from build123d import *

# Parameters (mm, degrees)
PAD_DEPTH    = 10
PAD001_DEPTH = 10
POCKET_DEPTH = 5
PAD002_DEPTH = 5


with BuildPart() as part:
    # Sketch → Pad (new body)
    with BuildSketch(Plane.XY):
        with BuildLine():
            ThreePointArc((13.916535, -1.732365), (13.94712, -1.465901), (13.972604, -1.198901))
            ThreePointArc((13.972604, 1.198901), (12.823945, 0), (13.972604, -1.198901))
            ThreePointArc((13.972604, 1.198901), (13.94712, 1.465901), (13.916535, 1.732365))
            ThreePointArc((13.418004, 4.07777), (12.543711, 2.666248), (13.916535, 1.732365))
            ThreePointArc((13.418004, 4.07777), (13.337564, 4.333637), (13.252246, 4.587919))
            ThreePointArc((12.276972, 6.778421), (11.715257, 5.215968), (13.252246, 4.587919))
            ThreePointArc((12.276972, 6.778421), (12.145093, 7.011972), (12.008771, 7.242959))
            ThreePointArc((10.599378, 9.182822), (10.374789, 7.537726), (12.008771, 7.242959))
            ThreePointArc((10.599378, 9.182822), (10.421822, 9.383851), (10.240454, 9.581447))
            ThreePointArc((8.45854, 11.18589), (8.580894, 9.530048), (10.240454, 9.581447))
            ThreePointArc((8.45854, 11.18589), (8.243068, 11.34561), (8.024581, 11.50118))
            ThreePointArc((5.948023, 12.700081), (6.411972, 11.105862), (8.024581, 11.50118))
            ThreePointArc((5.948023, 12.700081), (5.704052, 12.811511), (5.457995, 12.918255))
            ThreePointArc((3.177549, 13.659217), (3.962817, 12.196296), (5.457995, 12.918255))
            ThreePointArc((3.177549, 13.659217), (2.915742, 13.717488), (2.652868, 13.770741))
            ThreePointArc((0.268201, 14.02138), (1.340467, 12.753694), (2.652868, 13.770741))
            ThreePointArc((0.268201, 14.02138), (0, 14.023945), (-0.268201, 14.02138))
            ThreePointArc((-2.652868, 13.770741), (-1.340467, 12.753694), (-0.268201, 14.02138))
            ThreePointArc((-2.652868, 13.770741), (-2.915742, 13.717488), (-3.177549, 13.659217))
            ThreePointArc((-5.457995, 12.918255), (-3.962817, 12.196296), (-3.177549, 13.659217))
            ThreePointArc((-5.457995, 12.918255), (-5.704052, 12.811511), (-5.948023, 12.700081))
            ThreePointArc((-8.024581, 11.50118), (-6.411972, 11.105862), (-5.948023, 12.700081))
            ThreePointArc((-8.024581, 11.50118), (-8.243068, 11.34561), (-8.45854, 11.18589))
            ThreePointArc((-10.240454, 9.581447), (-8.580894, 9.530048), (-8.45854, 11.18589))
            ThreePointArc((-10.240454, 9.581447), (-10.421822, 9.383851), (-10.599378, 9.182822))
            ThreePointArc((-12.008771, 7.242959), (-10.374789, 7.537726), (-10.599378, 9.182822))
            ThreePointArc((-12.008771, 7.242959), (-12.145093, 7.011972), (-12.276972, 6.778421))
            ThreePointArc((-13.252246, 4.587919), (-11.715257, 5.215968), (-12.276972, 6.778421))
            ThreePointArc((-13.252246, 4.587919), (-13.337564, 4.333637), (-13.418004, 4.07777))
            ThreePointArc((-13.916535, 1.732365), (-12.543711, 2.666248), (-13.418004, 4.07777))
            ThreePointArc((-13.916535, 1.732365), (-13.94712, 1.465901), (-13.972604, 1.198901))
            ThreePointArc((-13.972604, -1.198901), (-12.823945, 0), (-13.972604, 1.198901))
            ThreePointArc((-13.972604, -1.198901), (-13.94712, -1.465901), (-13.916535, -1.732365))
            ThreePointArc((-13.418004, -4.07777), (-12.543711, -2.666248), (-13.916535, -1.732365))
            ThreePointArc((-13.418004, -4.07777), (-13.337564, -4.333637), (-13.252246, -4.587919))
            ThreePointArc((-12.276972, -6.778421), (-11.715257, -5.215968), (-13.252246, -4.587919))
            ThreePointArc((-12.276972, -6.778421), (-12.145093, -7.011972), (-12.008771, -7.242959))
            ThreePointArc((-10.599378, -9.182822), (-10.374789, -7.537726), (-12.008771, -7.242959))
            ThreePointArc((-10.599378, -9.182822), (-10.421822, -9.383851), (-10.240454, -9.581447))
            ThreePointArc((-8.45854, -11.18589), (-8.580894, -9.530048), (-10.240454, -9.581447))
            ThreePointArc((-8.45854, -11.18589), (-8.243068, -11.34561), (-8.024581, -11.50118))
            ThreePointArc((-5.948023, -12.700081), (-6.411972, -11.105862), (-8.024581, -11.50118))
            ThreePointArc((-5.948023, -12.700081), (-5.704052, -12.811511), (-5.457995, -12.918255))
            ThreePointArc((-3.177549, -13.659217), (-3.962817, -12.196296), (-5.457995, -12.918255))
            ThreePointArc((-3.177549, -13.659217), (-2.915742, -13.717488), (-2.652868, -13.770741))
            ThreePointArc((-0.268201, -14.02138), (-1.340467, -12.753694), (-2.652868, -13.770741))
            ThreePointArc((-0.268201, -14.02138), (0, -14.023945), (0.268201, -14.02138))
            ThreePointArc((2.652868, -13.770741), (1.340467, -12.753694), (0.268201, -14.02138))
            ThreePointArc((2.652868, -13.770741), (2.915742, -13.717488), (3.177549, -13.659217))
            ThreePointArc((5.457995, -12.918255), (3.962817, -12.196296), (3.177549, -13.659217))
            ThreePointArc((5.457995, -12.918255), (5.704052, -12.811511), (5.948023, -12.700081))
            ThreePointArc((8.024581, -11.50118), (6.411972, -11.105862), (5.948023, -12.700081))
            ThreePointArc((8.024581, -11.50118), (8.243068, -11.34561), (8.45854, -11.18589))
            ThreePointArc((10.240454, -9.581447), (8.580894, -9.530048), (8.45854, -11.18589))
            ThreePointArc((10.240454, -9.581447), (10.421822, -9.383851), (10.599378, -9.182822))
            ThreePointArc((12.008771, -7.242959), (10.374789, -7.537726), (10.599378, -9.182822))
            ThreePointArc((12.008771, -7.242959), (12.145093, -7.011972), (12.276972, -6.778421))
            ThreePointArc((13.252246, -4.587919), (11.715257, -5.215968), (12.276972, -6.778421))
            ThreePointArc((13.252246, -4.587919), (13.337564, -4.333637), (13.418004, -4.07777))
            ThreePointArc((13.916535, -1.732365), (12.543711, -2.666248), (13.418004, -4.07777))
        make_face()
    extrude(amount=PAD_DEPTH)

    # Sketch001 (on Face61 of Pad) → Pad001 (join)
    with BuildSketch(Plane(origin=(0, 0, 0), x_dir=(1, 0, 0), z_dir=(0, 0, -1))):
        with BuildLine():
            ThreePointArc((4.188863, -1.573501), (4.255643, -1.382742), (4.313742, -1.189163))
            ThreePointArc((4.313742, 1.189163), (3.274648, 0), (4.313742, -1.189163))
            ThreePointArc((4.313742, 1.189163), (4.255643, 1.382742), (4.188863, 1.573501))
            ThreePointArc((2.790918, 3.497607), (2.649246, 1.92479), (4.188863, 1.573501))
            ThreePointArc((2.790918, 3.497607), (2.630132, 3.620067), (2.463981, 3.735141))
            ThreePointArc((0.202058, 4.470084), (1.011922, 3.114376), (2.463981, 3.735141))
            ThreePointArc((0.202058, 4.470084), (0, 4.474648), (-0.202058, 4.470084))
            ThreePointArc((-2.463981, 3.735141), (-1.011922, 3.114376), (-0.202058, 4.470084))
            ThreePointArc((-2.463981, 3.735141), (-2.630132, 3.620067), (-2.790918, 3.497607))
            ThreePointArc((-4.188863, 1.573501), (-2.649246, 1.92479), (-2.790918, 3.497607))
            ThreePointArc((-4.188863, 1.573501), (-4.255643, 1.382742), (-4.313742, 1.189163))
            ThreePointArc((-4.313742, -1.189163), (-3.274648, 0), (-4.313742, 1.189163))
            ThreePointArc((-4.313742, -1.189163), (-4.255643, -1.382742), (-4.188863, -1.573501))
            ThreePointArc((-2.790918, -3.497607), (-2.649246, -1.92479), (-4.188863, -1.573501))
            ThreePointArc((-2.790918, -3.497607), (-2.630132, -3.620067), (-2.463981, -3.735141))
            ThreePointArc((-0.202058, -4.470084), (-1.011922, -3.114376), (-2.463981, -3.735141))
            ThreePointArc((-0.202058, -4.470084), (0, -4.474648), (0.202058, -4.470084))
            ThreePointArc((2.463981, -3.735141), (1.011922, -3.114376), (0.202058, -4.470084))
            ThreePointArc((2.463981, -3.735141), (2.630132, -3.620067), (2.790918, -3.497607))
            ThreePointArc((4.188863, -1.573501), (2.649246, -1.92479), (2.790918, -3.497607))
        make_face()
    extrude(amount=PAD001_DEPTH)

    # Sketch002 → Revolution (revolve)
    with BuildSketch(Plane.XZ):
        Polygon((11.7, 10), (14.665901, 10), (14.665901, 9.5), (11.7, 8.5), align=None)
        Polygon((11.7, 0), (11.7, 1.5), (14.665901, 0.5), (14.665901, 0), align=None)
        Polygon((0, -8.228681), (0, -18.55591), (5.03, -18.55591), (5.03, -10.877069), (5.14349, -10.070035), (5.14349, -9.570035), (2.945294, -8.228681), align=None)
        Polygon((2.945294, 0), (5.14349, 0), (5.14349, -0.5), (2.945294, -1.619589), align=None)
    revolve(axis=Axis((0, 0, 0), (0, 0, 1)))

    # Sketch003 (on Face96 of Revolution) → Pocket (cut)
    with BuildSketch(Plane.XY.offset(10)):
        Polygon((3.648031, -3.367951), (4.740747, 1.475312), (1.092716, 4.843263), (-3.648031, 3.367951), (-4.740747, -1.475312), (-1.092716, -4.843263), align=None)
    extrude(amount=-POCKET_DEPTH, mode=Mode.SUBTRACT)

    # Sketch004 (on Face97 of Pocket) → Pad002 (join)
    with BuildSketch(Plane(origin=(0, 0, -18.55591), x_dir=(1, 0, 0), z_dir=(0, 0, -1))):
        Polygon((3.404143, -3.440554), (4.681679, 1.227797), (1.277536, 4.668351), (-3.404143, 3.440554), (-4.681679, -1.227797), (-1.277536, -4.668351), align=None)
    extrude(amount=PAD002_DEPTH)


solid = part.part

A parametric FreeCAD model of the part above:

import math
import FreeCAD as App
import Part
import Sketcher
from FreeCAD import Vector
Q = App.Units.Quantity


def add_polygon(sketch, points):
    """Adds a closed chain of lines whose ends are joined by coincident constraints."""
    first, n = sketch.GeometryCount, len(points)
    for a, b in zip(points, points[1:] + points[:1]):
        sketch.addGeometry(Part.LineSegment(App.Vector(*a, 0), App.Vector(*b, 0)), False)
    for i in range(n):
        sketch.addConstraint(Sketcher.Constraint("Coincident", first + i, 2, first + (i + 1) % n, 1))

doc = App.newDocument("Part")
body = doc.addObject("PartDesign::Body", "Body")

# Sketch on XY plane
sketch1 = body.newObject("Sketcher::SketchObject", "Sketch")
sketch1.AttachmentSupport = (doc.getObject("XY_Plane"), [""])
sketch1.MapMode = "FlatFace"
sketch1.addGeometry([
    Part.ArcOfCircle(Part.Circle(Vector(-0.001647, 0.000165, 0), Vector(0, 0, 1), 14.025599), math.radians(-7.095657), math.radians(-4.904274)),  # 0
    Part.ArcOfCircle(Part.Circle(Vector(14.023945, 0, 0), Vector(0, 0, 1), 1.2), math.radians(92.452091), math.radians(267.547909)),  # 1
    Part.ArcOfCircle(Part.Circle(Vector(-0.001647, -0.000165, 0), Vector(0, 0, 1), 14.025599), math.radians(4.904274), math.radians(7.095657)),  # 2
    Part.ArcOfCircle(Part.Circle(Vector(13.717488, 2.915742, 0), Vector(0, 0, 1), 1.2), math.radians(104.452081), math.radians(279.547908)),  # 3
    Part.ArcOfCircle(Part.Circle(Vector(-0.001675, -0.000559, 0), Vector(0, 0, 1), 14.02571), math.radians(16.904372), math.radians(19.095739)),  # 4
    Part.ArcOfCircle(Part.Circle(Vector(12.811512, 5.704052, 0), Vector(0, 0, 1), 1.2), math.radians(116.452107), math.radians(291.547879)),  # 5
    Part.ArcOfCircle(Part.Circle(Vector(0.000156, 0.000094, 0), Vector(0, 0, 1), 14.023763), math.radians(28.904152), math.radians(31.095822)),  # 6
    Part.ArcOfCircle(Part.Circle(Vector(11.34561, 8.243068, 0), Vector(0, 0, 1), 1.2), math.radians(128.45208), math.radians(303.547921)),  # 7
    Part.ArcOfCircle(Part.Circle(Vector(0.000597, 0.000526, 0), Vector(0, 0, 1), 14.023149), math.radians(40.90415), math.radians(43.09592)),  # 8
    Part.ArcOfCircle(Part.Circle(Vector(9.38385, 10.421822, 0), Vector(0, 0, 1), 1.2), math.radians(140.452063), math.radians(315.547922)),  # 9
    Part.ArcOfCircle(Part.Circle(Vector(-0.000177, -0.000232, 0), Vector(0, 0, 1), 14.024237), math.radians(52.904172), math.radians(55.095771)),  # 10
    Part.ArcOfCircle(Part.Circle(Vector(7.011972, 12.145092, 0), Vector(0, 0, 1), 1.2), math.radians(152.452069), math.radians(327.547944)),  # 11
    Part.ArcOfCircle(Part.Circle(Vector(-0.000387, -0.000899, 0), Vector(0, 0, 1), 14.024923), math.radians(64.904307), math.radians(67.095795)),  # 12
    Part.ArcOfCircle(Part.Circle(Vector(4.333637, 13.337564, 0), Vector(0, 0, 1), 1.2), math.radians(164.452092), math.radians(339.547899)),  # 13
    Part.ArcOfCircle(Part.Circle(Vector(0.00029, 0.00132, 0), Vector(0, 0, 1), 14.022593), math.radians(76.904114), math.radians(79.095968)),  # 14
    Part.ArcOfCircle(Part.Circle(Vector(1.465901, 13.94712, 0), Vector(0, 0, 1), 1.2), math.radians(176.452094), math.radians(351.547887)),  # 15
    Part.ArcOfCircle(Part.Circle(Vector(0, 0.000874, 0), Vector(0, 0, 1), 14.023071), math.radians(88.904112), math.radians(91.095888)),  # 16
    Part.ArcOfCircle(Part.Circle(Vector(-1.465901, 13.94712, 0), Vector(0, 0, 1), 1.2), math.radians(-171.547887), math.radians(3.547906)),  # 17
    Part.ArcOfCircle(Part.Circle(Vector(-0.00029, 0.00132, 0), Vector(0, 0, 1), 14.022593), math.radians(100.904032), math.radians(103.095886)),  # 18
    Part.ArcOfCircle(Part.Circle(Vector(-4.333637, 13.337564, 0), Vector(0, 0, 1), 1.2), math.radians(-159.547899), math.radians(15.547908)),  # 19
    Part.ArcOfCircle(Part.Circle(Vector(0.000387, -0.000899, 0), Vector(0, 0, 1), 14.024923), math.radians(112.904205), math.radians(115.095693)),  # 20
    Part.ArcOfCircle(Part.Circle(Vector(-7.011972, 12.145092, 0), Vector(0, 0, 1), 1.2), math.radians(-147.547944), math.radians(27.547931)),  # 21
    Part.ArcOfCircle(Part.Circle(Vector(0.000177, -0.000232, 0), Vector(0, 0, 1), 14.024237), math.radians(124.904229), math.radians(127.095828)),  # 22
    Part.ArcOfCircle(Part.Circle(Vector(-9.38385, 10.421822, 0), Vector(0, 0, 1), 1.2), math.radians(-135.547922), math.radians(39.547937)),  # 23
    Part.ArcOfCircle(Part.Circle(Vector(-0.000597, 0.000526, 0), Vector(0, 0, 1), 14.023149), math.radians(136.90408), math.radians(139.09585)),  # 24
    Part.ArcOfCircle(Part.Circle(Vector(-11.34561, 8.243068, 0), Vector(0, 0, 1), 1.2), math.radians(-123.547921), math.radians(51.54792)),  # 25
    Part.ArcOfCircle(Part.Circle(Vector(-0.000156, 0.000094, 0), Vector(0, 0, 1), 14.023763), math.radians(148.904178), math.radians(151.095848)),  # 26
    Part.ArcOfCircle(Part.Circle(Vector(-12.811512, 5.704052, 0), Vector(0, 0, 1), 1.2), math.radians(-111.547879), math.radians(63.547893)),  # 27
    Part.ArcOfCircle(Part.Circle(Vector(0.001675, -0.000559, 0), Vector(0, 0, 1), 14.02571), math.radians(160.904261), math.radians(163.095628)),  # 28
    Part.ArcOfCircle(Part.Circle(Vector(-13.717488, 2.915742, 0), Vector(0, 0, 1), 1.2), math.radians(-99.547908), math.radians(75.547919)),  # 29
    Part.ArcOfCircle(Part.Circle(Vector(0.001647, -0.000165, 0), Vector(0, 0, 1), 14.025599), math.radians(172.904343), math.radians(175.095726)),  # 30
    Part.ArcOfCircle(Part.Circle(Vector(-14.023945, 0, 0), Vector(0, 0, 1), 1.2), math.radians(-87.547909), math.radians(87.547909)),  # 31
    Part.ArcOfCircle(Part.Circle(Vector(0.001647, 0.000165, 0), Vector(0, 0, 1), 14.025599), math.radians(-175.095726), math.radians(-172.904343)),  # 32
    Part.ArcOfCircle(Part.Circle(Vector(-13.717488, -2.915742, 0), Vector(0, 0, 1), 1.2), math.radians(-75.547919), math.radians(99.547908)),  # 33
    Part.ArcOfCircle(Part.Circle(Vector(0.001675, 0.000559, 0), Vector(0, 0, 1), 14.02571), math.radians(-163.095628), math.radians(-160.904261)),  # 34
    Part.ArcOfCircle(Part.Circle(Vector(-12.811512, -5.704052, 0), Vector(0, 0, 1), 1.2), math.radians(-63.547893), math.radians(111.547879)),  # 35
    Part.ArcOfCircle(Part.Circle(Vector(-0.000156, -0.000094, 0), Vector(0, 0, 1), 14.023763), math.radians(-151.095848), math.radians(-148.904178)),  # 36
    Part.ArcOfCircle(Part.Circle(Vector(-11.34561, -8.243068, 0), Vector(0, 0, 1), 1.2), math.radians(-51.54792), math.radians(123.547921)),  # 37
    Part.ArcOfCircle(Part.Circle(Vector(-0.000597, -0.000526, 0), Vector(0, 0, 1), 14.023149), math.radians(-139.09585), math.radians(-136.90408)),  # 38
    Part.ArcOfCircle(Part.Circle(Vector(-9.38385, -10.421822, 0), Vector(0, 0, 1), 1.2), math.radians(-39.547937), math.radians(135.547922)),  # 39
    Part.ArcOfCircle(Part.Circle(Vector(0.000177, 0.000232, 0), Vector(0, 0, 1), 14.024237), math.radians(-127.095828), math.radians(-124.904229)),  # 40
    Part.ArcOfCircle(Part.Circle(Vector(-7.011972, -12.145092, 0), Vector(0, 0, 1), 1.2), math.radians(-27.547931), math.radians(147.547944)),  # 41
    Part.ArcOfCircle(Part.Circle(Vector(0.000387, 0.000899, 0), Vector(0, 0, 1), 14.024923), math.radians(-115.095693), math.radians(-112.904205)),  # 42
    Part.ArcOfCircle(Part.Circle(Vector(-4.333637, -13.337564, 0), Vector(0, 0, 1), 1.2), math.radians(-15.547908), math.radians(159.547899)),  # 43
    Part.ArcOfCircle(Part.Circle(Vector(-0.00029, -0.00132, 0), Vector(0, 0, 1), 14.022593), math.radians(-103.095886), math.radians(-100.904032)),  # 44
    Part.ArcOfCircle(Part.Circle(Vector(-1.465901, -13.94712, 0), Vector(0, 0, 1), 1.2), math.radians(-3.547906), math.radians(171.547887)),  # 45
    Part.ArcOfCircle(Part.Circle(Vector(0, -0.000874, 0), Vector(0, 0, 1), 14.023071), math.radians(-91.095888), math.radians(-88.904112)),  # 46
    Part.ArcOfCircle(Part.Circle(Vector(1.465901, -13.94712, 0), Vector(0, 0, 1), 1.2), math.radians(8.452113), math.radians(183.547906)),  # 47
    Part.ArcOfCircle(Part.Circle(Vector(0.00029, -0.00132, 0), Vector(0, 0, 1), 14.022593), math.radians(-79.095968), math.radians(-76.904114)),  # 48
    Part.ArcOfCircle(Part.Circle(Vector(4.333637, -13.337564, 0), Vector(0, 0, 1), 1.2), math.radians(20.452101), math.radians(195.547908)),  # 49
    Part.ArcOfCircle(Part.Circle(Vector(-0.000387, 0.000899, 0), Vector(0, 0, 1), 14.024923), math.radians(-67.095795), math.radians(-64.904307)),  # 50
    Part.ArcOfCircle(Part.Circle(Vector(7.011972, -12.145092, 0), Vector(0, 0, 1), 1.2), math.radians(32.452056), math.radians(207.547931)),  # 51
    Part.ArcOfCircle(Part.Circle(Vector(-0.000177, 0.000232, 0), Vector(0, 0, 1), 14.024237), math.radians(-55.095771), math.radians(-52.904172)),  # 52
    Part.ArcOfCircle(Part.Circle(Vector(9.38385, -10.421822, 0), Vector(0, 0, 1), 1.2), math.radians(44.452078), math.radians(219.547937)),  # 53
    Part.ArcOfCircle(Part.Circle(Vector(0.000597, -0.000526, 0), Vector(0, 0, 1), 14.023149), math.radians(-43.09592), math.radians(-40.90415)),  # 54
    Part.ArcOfCircle(Part.Circle(Vector(11.34561, -8.243068, 0), Vector(0, 0, 1), 1.2), math.radians(56.452079), math.radians(231.54792)),  # 55
    Part.ArcOfCircle(Part.Circle(Vector(0.000156, -0.000094, 0), Vector(0, 0, 1), 14.023763), math.radians(-31.095822), math.radians(-28.904152)),  # 56
    Part.ArcOfCircle(Part.Circle(Vector(12.811512, -5.704052, 0), Vector(0, 0, 1), 1.2), math.radians(68.452121), math.radians(243.547893)),  # 57
    Part.ArcOfCircle(Part.Circle(Vector(-0.001675, 0.000559, 0), Vector(0, 0, 1), 14.02571), math.radians(-19.095739), math.radians(-16.904372)),  # 58
    Part.ArcOfCircle(Part.Circle(Vector(13.717488, -2.915742, 0), Vector(0, 0, 1), 1.2), math.radians(80.452092), math.radians(255.547919)),  # 59
], False)
sketch1.addConstraint([
    Sketcher.Constraint("Coincident", 0, 2, 1, 2),
    Sketcher.Constraint("Coincident", 1, 1, 2, 1),
    Sketcher.Constraint("Coincident", 2, 2, 3, 2),
    Sketcher.Constraint("Coincident", 3, 1, 4, 1),
    Sketcher.Constraint("Coincident", 4, 2, 5, 2),
    Sketcher.Constraint("Coincident", 5, 1, 6, 1),
    Sketcher.Constraint("Coincident", 6, 2, 7, 2),
    Sketcher.Constraint("Coincident", 7, 1, 8, 1),
    Sketcher.Constraint("Coincident", 8, 2, 9, 2),
    Sketcher.Constraint("Coincident", 9, 1, 10, 1),
    Sketcher.Constraint("Coincident", 10, 2, 11, 2),
    Sketcher.Constraint("Coincident", 11, 1, 12, 1),
    Sketcher.Constraint("Coincident", 12, 2, 13, 2),
    Sketcher.Constraint("Coincident", 13, 1, 14, 1),
    Sketcher.Constraint("Coincident", 14, 2, 15, 2),
    Sketcher.Constraint("Coincident", 15, 1, 16, 1),
    Sketcher.Constraint("Coincident", 16, 2, 17, 2),
    Sketcher.Constraint("Coincident", 17, 1, 18, 1),
    Sketcher.Constraint("Coincident", 18, 2, 19, 2),
    Sketcher.Constraint("Coincident", 19, 1, 20, 1),
    Sketcher.Constraint("Coincident", 20, 2, 21, 2),
    Sketcher.Constraint("Coincident", 21, 1, 22, 1),
    Sketcher.Constraint("Coincident", 22, 2, 23, 2),
    Sketcher.Constraint("Coincident", 23, 1, 24, 1),
    Sketcher.Constraint("Coincident", 24, 2, 25, 2),
    Sketcher.Constraint("Coincident", 25, 1, 26, 1),
    Sketcher.Constraint("Coincident", 26, 2, 27, 2),
    Sketcher.Constraint("Coincident", 27, 1, 28, 1),
    Sketcher.Constraint("Coincident", 28, 2, 29, 2),
    Sketcher.Constraint("Coincident", 29, 1, 30, 1),
    Sketcher.Constraint("Coincident", 30, 2, 31, 2),
    Sketcher.Constraint("Coincident", 31, 1, 32, 1),
    Sketcher.Constraint("Coincident", 32, 2, 33, 2),
    Sketcher.Constraint("Coincident", 33, 1, 34, 1),
    Sketcher.Constraint("Coincident", 34, 2, 35, 2),
    Sketcher.Constraint("Coincident", 35, 1, 36, 1),
    Sketcher.Constraint("Coincident", 36, 2, 37, 2),
    Sketcher.Constraint("Coincident", 37, 1, 38, 1),
    Sketcher.Constraint("Coincident", 38, 2, 39, 2),
    Sketcher.Constraint("Coincident", 39, 1, 40, 1),
    Sketcher.Constraint("Coincident", 40, 2, 41, 2),
    Sketcher.Constraint("Coincident", 41, 1, 42, 1),
    Sketcher.Constraint("Coincident", 42, 2, 43, 2),
    Sketcher.Constraint("Coincident", 43, 1, 44, 1),
    Sketcher.Constraint("Coincident", 44, 2, 45, 2),
    Sketcher.Constraint("Coincident", 45, 1, 46, 1),
    Sketcher.Constraint("Coincident", 46, 2, 47, 2),
    Sketcher.Constraint("Coincident", 47, 1, 48, 1),
    Sketcher.Constraint("Coincident", 48, 2, 49, 2),
    Sketcher.Constraint("Coincident", 49, 1, 50, 1),
    Sketcher.Constraint("Coincident", 50, 2, 51, 2),
    Sketcher.Constraint("Coincident", 51, 1, 52, 1),
    Sketcher.Constraint("Coincident", 52, 2, 53, 2),
    Sketcher.Constraint("Coincident", 53, 1, 54, 1),
    Sketcher.Constraint("Coincident", 54, 2, 55, 2),
    Sketcher.Constraint("Coincident", 55, 1, 56, 1),
    Sketcher.Constraint("Coincident", 56, 2, 57, 2),
    Sketcher.Constraint("Coincident", 57, 1, 58, 1),
    Sketcher.Constraint("Coincident", 58, 2, 59, 2),
    Sketcher.Constraint("Coincident", 59, 1, 0, 1),
    Sketcher.Constraint("Equal", 0, 2),
    Sketcher.Constraint("Equal", 1, 3),
    Sketcher.Constraint("Equal", 3, 5),
    Sketcher.Constraint("Equal", 5, 7),
    Sketcher.Constraint("Equal", 7, 9),
    Sketcher.Constraint("Equal", 9, 11),
    Sketcher.Constraint("Equal", 11, 13),
    Sketcher.Constraint("Equal", 13, 15),
    Sketcher.Constraint("Equal", 15, 17),
    Sketcher.Constraint("Equal", 14, 18),
    Sketcher.Constraint("Equal", 17, 19),
    Sketcher.Constraint("Equal", 12, 20),
    Sketcher.Constraint("Equal", 19, 21),
    Sketcher.Constraint("Equal", 10, 22),
    Sketcher.Constraint("Equal", 21, 23),
    Sketcher.Constraint("Equal", 8, 24),
    Sketcher.Constraint("Equal", 23, 25),
    Sketcher.Constraint("Equal", 6, 26),
    Sketcher.Constraint("Equal", 25, 27),
    Sketcher.Constraint("Equal", 4, 28),
    Sketcher.Constraint("Equal", 27, 29),
    Sketcher.Constraint("Equal", 2, 30),
    Sketcher.Constraint("Equal", 29, 31),
    Sketcher.Constraint("Equal", 30, 32),
    Sketcher.Constraint("Equal", 31, 33),
    Sketcher.Constraint("Equal", 28, 34),
    Sketcher.Constraint("Equal", 33, 35),
    Sketcher.Constraint("Equal", 26, 36),
    Sketcher.Constraint("Equal", 35, 37),
    Sketcher.Constraint("Equal", 24, 38),
    Sketcher.Constraint("Equal", 37, 39),
    Sketcher.Constraint("Equal", 22, 40),
    Sketcher.Constraint("Equal", 39, 41),
    Sketcher.Constraint("Equal", 20, 42),
    Sketcher.Constraint("Equal", 41, 43),
    Sketcher.Constraint("Equal", 18, 44),
    Sketcher.Constraint("Equal", 43, 45),
    Sketcher.Constraint("Equal", 16, 46),
    Sketcher.Constraint("Equal", 45, 47),
    Sketcher.Constraint("Equal", 44, 48),
    Sketcher.Constraint("Equal", 47, 49),
    Sketcher.Constraint("Equal", 42, 50),
    Sketcher.Constraint("Equal", 49, 51),
    Sketcher.Constraint("Equal", 40, 52),
    Sketcher.Constraint("Equal", 51, 53),
    Sketcher.Constraint("Equal", 38, 54),
    Sketcher.Constraint("Equal", 53, 55),
    Sketcher.Constraint("Equal", 36, 56),
    Sketcher.Constraint("Equal", 55, 57),
    Sketcher.Constraint("Equal", 34, 58),
    Sketcher.Constraint("Equal", 57, 59),
    Sketcher.Constraint("Symmetric", 0, 3, 30, 3, -1, 1),
    Sketcher.Constraint("Symmetric", 1, 3, 31, 3, -1, 1),
    Sketcher.Constraint("Symmetric", 2, 3, 32, 3, -1, 1),
    Sketcher.Constraint("Symmetric", 3, 3, 33, 3, -1, 1),
    Sketcher.Constraint("Symmetric", 4, 3, 34, 3, -1, 1),
    Sketcher.Constraint("Symmetric", 5, 3, 35, 3, -1, 1),
    Sketcher.Constraint("Symmetric", 6, 3, 36, 3, -1, 1),
    Sketcher.Constraint("Symmetric", 7, 3, 37, 3, -1, 1),
    Sketcher.Constraint("Symmetric", 8, 3, 38, 3, -1, 1),
    Sketcher.Constraint("Symmetric", 9, 3, 39, 3, -1, 1),
    Sketcher.Constraint("Symmetric", 10, 3, 40, 3, -1, 1),
    Sketcher.Constraint("Symmetric", 11, 3, 41, 3, -1, 1),
    Sketcher.Constraint("Symmetric", 12, 3, 42, 3, -1, 1),
    Sketcher.Constraint("Symmetric", 13, 3, 43, 3, -1, 1),
    Sketcher.Constraint("Symmetric", 14, 3, 44, 3, -1, 1),
    Sketcher.Constraint("Symmetric", 15, 3, 45, 3, -1, 1),
    Sketcher.Constraint("Symmetric", 16, 3, 46, 3, -1, 1),
    Sketcher.Constraint("Symmetric", 17, 3, 47, 3, -1, 1),
    Sketcher.Constraint("Symmetric", 18, 3, 48, 3, -1, 1),
    Sketcher.Constraint("Symmetric", 19, 3, 49, 3, -1, 1),
    Sketcher.Constraint("Symmetric", 20, 3, 50, 3, -1, 1),
    Sketcher.Constraint("Symmetric", 21, 3, 51, 3, -1, 1),
    Sketcher.Constraint("Symmetric", 22, 3, 52, 3, -1, 1),
    Sketcher.Constraint("Symmetric", 23, 3, 53, 3, -1, 1),
    Sketcher.Constraint("Symmetric", 24, 3, 54, 3, -1, 1),
    Sketcher.Constraint("Symmetric", 25, 3, 55, 3, -1, 1),
    Sketcher.Constraint("Symmetric", 26, 3, 56, 3, -1, 1),
    Sketcher.Constraint("Symmetric", 27, 3, 57, 3, -1, 1),
    Sketcher.Constraint("Symmetric", 28, 3, 58, 3, -1, 1),
    Sketcher.Constraint("Symmetric", 29, 3, 59, 3, -1, 1),
    Sketcher.Constraint("Symmetric", 15, 3, 17, 3, -2),
    Sketcher.Constraint("Symmetric", 14, 3, 18, 3, -2),
    Sketcher.Constraint("Symmetric", 13, 3, 19, 3, -2),
    Sketcher.Constraint("Symmetric", 12, 3, 20, 3, -2),
    Sketcher.Constraint("Symmetric", 11, 3, 21, 3, -2),
    Sketcher.Constraint("Symmetric", 10, 3, 22, 3, -2),
    Sketcher.Constraint("Symmetric", 9, 3, 23, 3, -2),
    Sketcher.Constraint("Symmetric", 8, 3, 24, 3, -2),
    Sketcher.Constraint("Symmetric", 7, 3, 25, 3, -2),
    Sketcher.Constraint("Symmetric", 6, 3, 26, 3, -2),
    Sketcher.Constraint("Symmetric", 5, 3, 27, 3, -2),
    Sketcher.Constraint("Symmetric", 4, 3, 28, 3, -2),
    Sketcher.Constraint("Symmetric", 3, 3, 29, 3, -2),
    Sketcher.Constraint("Symmetric", 2, 3, 30, 3, -2),
    Sketcher.Constraint("PointOnObject", 1, 3, -1),
    Sketcher.Constraint("PointOnObject", 16, 3, -2),
    Sketcher.Constraint("Radius", 1, Q("1.2 mm")),
    Sketcher.Constraint("Radius", 0, Q("14.025599 mm")),
    Sketcher.Constraint("Radius", 4, Q("14.02571 mm")),
    Sketcher.Constraint("Radius", 8, Q("14.023149 mm")),
    Sketcher.Constraint("Radius", 16, Q("14.023071 mm")),
    Sketcher.Constraint("Radius", 6, Q("14.023763 mm")),
    Sketcher.Constraint("Radius", 10, Q("14.024237 mm")),
    Sketcher.Constraint("Radius", 12, Q("14.024923 mm")),
    Sketcher.Constraint("Radius", 14, Q("14.022593 mm")),
    Sketcher.Constraint("DistanceY", 12, 3, -1, 1, Q("0.000899 mm")),
    Sketcher.Constraint("DistanceX", -1, 1, 15, 3, Q("1.465901 mm")),
    Sketcher.Constraint("DistanceY", -1, 1, 1, 1, Q("1.198901 mm")),
    Sketcher.Constraint("DistanceX", -1, 1, 15, 1, Q("0.268201 mm")),
    Sketcher.Constraint("DistanceX", -1, 1, 3, 3, Q("13.717488 mm")),
    Sketcher.Constraint("DistanceY", -1, 1, 3, 3, Q("2.915742 mm")),
    Sketcher.Constraint("DistanceY", 4, 3, -1, 1, Q("0.000559 mm")),
    Sketcher.Constraint("DistanceX", -1, 1, 5, 3, Q("12.811512 mm")),
    Sketcher.Constraint("DistanceX", -1, 1, 7, 3, Q("11.34561 mm")),
    Sketcher.Constraint("DistanceX", -1, 1, 9, 3, Q("9.38385 mm")),
    Sketcher.Constraint("DistanceY", -1, 1, 9, 3, Q("10.421822 mm")),
    Sketcher.Constraint("DistanceY", 10, 3, -1, 1, Q("0.000232 mm")),
    Sketcher.Constraint("DistanceX", -1, 1, 14, 3, Q("0.00029 mm")),
    Sketcher.Constraint("DistanceY", -1, 1, 14, 3, Q("0.00132 mm")),
    Sketcher.Constraint("DistanceY", -1, 1, 15, 3, Q("13.94712 mm")),
    Sketcher.Constraint("DistanceY", -1, 1, 3, 1, Q("4.07777 mm")),
    Sketcher.Constraint("DistanceY", -1, 1, 4, 2, Q("4.587919 mm")),
    Sketcher.Constraint("DistanceX", -1, 1, 5, 1, Q("12.276972 mm")),
    Sketcher.Constraint("DistanceX", -1, 1, 6, 2, Q("12.008771 mm")),
    Sketcher.Constraint("DistanceY", -1, 1, 6, 2, Q("7.242959 mm")),
    Sketcher.Constraint("DistanceX", -1, 1, 9, 1, Q("8.45854 mm")),
    Sketcher.Constraint("DistanceX", -1, 1, 10, 2, Q("8.024581 mm")),
    Sketcher.Constraint("DistanceY", -1, 1, 11, 1, Q("12.700081 mm")),
    Sketcher.Constraint("DistanceX", -1, 1, 13, 1, Q("3.177549 mm")),
    Sketcher.Constraint("DistanceY", -1, 1, 24, 2, Q("9.182822 mm")),
    Sketcher.Constraint("DistanceX", 0, 3, -1, 1, Q("0.001647 mm")),
    Sketcher.Constraint("DistanceY", -1, 1, 0, 3, Q("0.000165 mm")),
    Sketcher.Constraint("DistanceX", -1, 1, 8, 3, Q("0.000597 mm")),
    Sketcher.Constraint("DistanceX", -1, 1, 11, 3, Q("7.011972 mm")),
    Sketcher.Constraint("DistanceX", -1, 1, 13, 3, Q("4.333637 mm")),
])
pad1 = body.newObject("PartDesign::Pad", "Pad")
pad1.Profile = sketch1
pad1.Length = 10

# Sketch on XY plane
sketch2 = body.newObject("Sketcher::SketchObject", "Sketch001")
sketch2.AttachmentSupport = (doc.getObject("XY_Plane"), [""])
sketch2.MapMode = "FlatFace"
sketch2.addGeometry([
    Part.ArcOfCircle(Part.Circle(Vector(-0.000612, -0.000199, 0), Vector(0, 0, 1), 4.475291), math.radians(15.41223), math.radians(20.587774)),  # 0
    Part.ArcOfCircle(Part.Circle(Vector(4.474648, 0, 0), Vector(0, 0, 1), 1.2), math.radians(97.705894), math.radians(262.294106)),  # 1
    Part.ArcOfCircle(Part.Circle(Vector(-0.000612, 0.000199, 0), Vector(0, 0, 1), 4.475291), math.radians(-20.587774), math.radians(-15.41223)),  # 2
    Part.ArcOfCircle(Part.Circle(Vector(3.620066, -2.630132, 0), Vector(0, 0, 1), 1.2), math.radians(61.705901), math.radians(226.294092)),  # 3
    Part.ArcOfCircle(Part.Circle(Vector(0.000003, -0.00001, 0), Vector(0, 0, 1), 4.474639), math.radians(-56.588105), math.radians(-51.411811)),  # 4
    Part.ArcOfCircle(Part.Circle(Vector(1.382742, -4.255644, 0), Vector(0, 0, 1), 1.2), math.radians(25.705933), math.radians(190.294052)),  # 5
    Part.ArcOfCircle(Part.Circle(Vector(0, 0.000403, 0), Vector(0, 0, 1), 4.475051), math.radians(-92.587905), math.radians(-87.412095)),  # 6
    Part.ArcOfCircle(Part.Circle(Vector(-1.382742, -4.255644, 0), Vector(0, 0, 1), 1.2), math.radians(-10.294052), math.radians(154.294067)),  # 7
    Part.ArcOfCircle(Part.Circle(Vector(-0.000003, -0.00001, 0), Vector(0, 0, 1), 4.474639), math.radians(-128.588189), math.radians(-123.411895)),  # 8
    Part.ArcOfCircle(Part.Circle(Vector(-3.620066, -2.630132, 0), Vector(0, 0, 1), 1.2), math.radians(-46.294092), math.radians(118.294099)),  # 9
    Part.ArcOfCircle(Part.Circle(Vector(0.000612, 0.000199, 0), Vector(0, 0, 1), 4.475291), math.radians(-164.58777), math.radians(-159.412226)),  # 10
    Part.ArcOfCircle(Part.Circle(Vector(-4.474648, 0, 0), Vector(0, 0, 1), 1.2), math.radians(-82.294106), math.radians(82.294106)),  # 11
    Part.ArcOfCircle(Part.Circle(Vector(0.000612, -0.000199, 0), Vector(0, 0, 1), 4.475291), math.radians(159.412226), math.radians(164.58777)),  # 12
    Part.ArcOfCircle(Part.Circle(Vector(-3.620066, 2.630132, 0), Vector(0, 0, 1), 1.2), math.radians(-118.294099), math.radians(46.294092)),  # 13
    Part.ArcOfCircle(Part.Circle(Vector(-0.000003, 0.00001, 0), Vector(0, 0, 1), 4.474639), math.radians(123.411895), math.radians(128.588189)),  # 14
    Part.ArcOfCircle(Part.Circle(Vector(-1.382742, 4.255644, 0), Vector(0, 0, 1), 1.2), math.radians(-154.294067), math.radians(10.294052)),  # 15
    Part.ArcOfCircle(Part.Circle(Vector(0, -0.000403, 0), Vector(0, 0, 1), 4.475051), math.radians(87.412095), math.radians(92.587905)),  # 16
    Part.ArcOfCircle(Part.Circle(Vector(1.382742, 4.255644, 0), Vector(0, 0, 1), 1.2), math.radians(169.705948), math.radians(334.294067)),  # 17
    Part.ArcOfCircle(Part.Circle(Vector(0.000003, 0.00001, 0), Vector(0, 0, 1), 4.474639), math.radians(51.411811), math.radians(56.588105)),  # 18
    Part.ArcOfCircle(Part.Circle(Vector(3.620066, 2.630132, 0), Vector(0, 0, 1), 1.2), math.radians(133.705908), math.radians(298.294099)),  # 19
], False)
sketch2.addConstraint([
    Sketcher.Constraint("Coincident", 0, 1, 1, 1),
    Sketcher.Constraint("Coincident", 1, 2, 2, 2),
    Sketcher.Constraint("Coincident", 2, 1, 3, 1),
    Sketcher.Constraint("Coincident", 3, 2, 4, 2),
    Sketcher.Constraint("Coincident", 4, 1, 5, 1),
    Sketcher.Constraint("Coincident", 5, 2, 6, 2),
    Sketcher.Constraint("Coincident", 6, 1, 7, 1),
    Sketcher.Constraint("Coincident", 7, 2, 8, 2),
    Sketcher.Constraint("Coincident", 8, 1, 9, 1),
    Sketcher.Constraint("Coincident", 9, 2, 10, 2),
    Sketcher.Constraint("Coincident", 10, 1, 11, 1),
    Sketcher.Constraint("Coincident", 11, 2, 12, 2),
    Sketcher.Constraint("Coincident", 12, 1, 13, 1),
    Sketcher.Constraint("Coincident", 13, 2, 14, 2),
    Sketcher.Constraint("Coincident", 14, 1, 15, 1),
    Sketcher.Constraint("Coincident", 15, 2, 16, 2),
    Sketcher.Constraint("Coincident", 16, 1, 17, 1),
    Sketcher.Constraint("Coincident", 17, 2, 18, 2),
    Sketcher.Constraint("Coincident", 18, 1, 19, 1),
    Sketcher.Constraint("Coincident", 19, 2, 0, 2),
    Sketcher.Constraint("Coincident", 8, 3, 4, 3),
    Sketcher.Constraint("Coincident", 18, 3, 14, 3),
    Sketcher.Constraint("Equal", 0, 2),
    Sketcher.Constraint("Equal", 1, 3),
    Sketcher.Constraint("Equal", 3, 5),
    Sketcher.Constraint("Equal", 5, 7),
    Sketcher.Constraint("Equal", 4, 8),
    Sketcher.Constraint("Equal", 7, 9),
    Sketcher.Constraint("Equal", 2, 10),
    Sketcher.Constraint("Equal", 9, 11),
    Sketcher.Constraint("Equal", 10, 12),
    Sketcher.Constraint("Equal", 11, 13),
    Sketcher.Constraint("Equal", 8, 14),
    Sketcher.Constraint("Equal", 13, 15),
    Sketcher.Constraint("Equal", 6, 16),
    Sketcher.Constraint("Equal", 15, 17),
    Sketcher.Constraint("Equal", 14, 18),
    Sketcher.Constraint("Equal", 17, 19),
    Sketcher.Constraint("Symmetric", 0, 3, 10, 3, -1, 1),
    Sketcher.Constraint("Symmetric", 1, 3, 11, 3, -1, 1),
    Sketcher.Constraint("Symmetric", 2, 3, 12, 3, -1, 1),
    Sketcher.Constraint("Symmetric", 3, 3, 13, 3, -1, 1),
    Sketcher.Constraint("Symmetric", 4, 3, 14, 3, -1, 1),
    Sketcher.Constraint("Symmetric", 5, 3, 15, 3, -1, 1),
    Sketcher.Constraint("Symmetric", 6, 3, 16, 3, -1, 1),
    Sketcher.Constraint("Symmetric", 7, 3, 17, 3, -1, 1),
    Sketcher.Constraint("Symmetric", 9, 3, 19, 3, -1, 1),
    Sketcher.Constraint("Symmetric", 5, 3, 7, 3, -2),
    Sketcher.Constraint("Symmetric", 3, 3, 9, 3, -2),
    Sketcher.Constraint("Symmetric", 2, 3, 10, 3, -2),
    Sketcher.Constraint("PointOnObject", 1, 3, -1),
    Sketcher.Constraint("PointOnObject", 6, 3, -2),
    Sketcher.Constraint("Horizontal", 4, 1, 7, 2),
    Sketcher.Constraint("Radius", 1, Q("1.2 mm")),
    Sketcher.Constraint("Radius", 0, Q("4.475291 mm")),
    Sketcher.Constraint("Radius", 4, Q("4.474639 mm")),
    Sketcher.Constraint("Radius", 6, Q("4.475051 mm")),
    Sketcher.Constraint("DistanceX", 17, 3, 0, 1, Q("2.931 mm")),
    Sketcher.Constraint("DistanceY", 0, 3, -1, 1, Q("0.000199 mm")),
    Sketcher.Constraint("DistanceY", 2, 1, -1, 1, Q("1.573501 mm")),
    Sketcher.Constraint("DistanceY", 0, 3, 6, 3, Q("0.000602 mm")),
    Sketcher.Constraint("DistanceX", 7, 3, 5, 2, Q("1.5848 mm")),
    Sketcher.Constraint("DistanceX", -1, 1, 0, 1, Q("4.313742 mm")),
    Sketcher.Constraint("DistanceX", -1, 1, 4, 1, Q("2.463981 mm")),
    Sketcher.Constraint("DistanceX", 0, 3, 1, 3, Q("4.47526 mm")),
    Sketcher.Constraint("DistanceX", 3, 3, 1, 3, Q("0.854582 mm")),
])
pad2 = body.newObject("PartDesign::Pad", "Pad001")
pad2.Profile = sketch2
pad2.Length = 10
pad2.Reversed = True

# Sketch on XZ plane
sketch3 = body.newObject("Sketcher::SketchObject", "Sketch002")
sketch3.AttachmentSupport = (doc.getObject("XZ_Plane"), [""])
sketch3.MapMode = "FlatFace"
add_polygon(sketch3, [(14.7, 10), (11.7, 10), (11.7, 8.5), (14.7, 9.5)])  # lines 0-3
add_polygon(sketch3, [(11.7, 1.5), (11.7, 0), (14.7, 0), (14.7, 0.5)])  # lines 4-7
add_polygon(sketch3, [(0, -8.2), (0, -18.6), (5, -18.6), (5, -10.9), (5.1, -10.1), (5.1, -9.6), (2.9, -8.2)])  # lines 8-14
add_polygon(sketch3, [(5.1, 0), (2.9, 0), (2.9, -1.6), (5.1, -0.5)])  # lines 15-18
sketch3.addConstraint([
    Sketcher.Constraint("Horizontal", 0),
    Sketcher.Constraint("Vertical", 1),
    Sketcher.Constraint("Vertical", 3),
    Sketcher.Constraint("Vertical", 4),
    Sketcher.Constraint("Horizontal", 5),
    Sketcher.Constraint("Vertical", 6),
    Sketcher.Constraint("Vertical", 8),
    Sketcher.Constraint("Horizontal", 9),
    Sketcher.Constraint("Vertical", 10),
    Sketcher.Constraint("Vertical", 12),
    Sketcher.Constraint("Horizontal", 14),
    Sketcher.Constraint("Horizontal", 15),
    Sketcher.Constraint("Vertical", 16),
    Sketcher.Constraint("Vertical", 18),
    Sketcher.Constraint("PointOnObject", 4, 2, -1),
    Sketcher.Constraint("PointOnObject", 8, 2, -2),
    Sketcher.Constraint("PointOnObject", 15, 2, -1),
    Sketcher.Constraint("Vertical", 1, 2, 4, 2),
    Sketcher.Constraint("Vertical", 3, 2, 5, 2),
    Sketcher.Constraint("Vertical", 13, 2, 15, 2),
    Sketcher.Constraint("Vertical", 12, 2, 17, 2),
    Sketcher.Constraint("Equal", 1, 4),
    Sketcher.Constraint("Equal", 3, 6),
    Sketcher.Constraint("Equal", 6, 12),
    Sketcher.Constraint("Equal", 12, 18),
    Sketcher.Constraint("DistanceY", 1, 2, 1, 1, Q("1.5 mm")),
    Sketcher.Constraint("DistanceY", 3, 1, 3, 2, Q("0.5 mm")),
    Sketcher.Constraint("DistanceY", -1, 1, 0, 2, Q("10 mm")),
    Sketcher.Constraint("DistanceX", 9, 1, 9, 2, Q("5.03 mm")),
    Sketcher.Constraint("DistanceX", -1, 1, 0, 2, Q("11.7 mm")),
    Sketcher.Constraint("DistanceX", 0, 2, 0, 1, Q("2.965901 mm")),
    Sketcher.Constraint("DistanceY", 8, 2, 8, 1, Q("10.327229 mm")),
    Sketcher.Constraint("DistanceY", 10, 1, 10, 2, Q("7.678841 mm")),
    Sketcher.Constraint("DistanceY", 16, 2, 16, 1, Q("1.619589 mm")),
    Sketcher.Constraint("Distance", 13, Q("2.57513 mm")),
    Sketcher.Constraint("Distance", 17, Q("2.46689 mm")),
    Sketcher.Constraint("DistanceX", 14, 2, 14, 1, Q("2.945294 mm")),
    Sketcher.Constraint("DistanceY", 8, 2, -1, 1, Q("18.55591 mm")),
])
revolution = body.newObject("PartDesign::Revolution", "Revolution")
revolution.Profile = sketch3
revolution.ReferenceAxis = (sketch3, ["V_Axis"])
revolution.Angle = 360

# Sketch on XY plane
sketch4 = body.newObject("Sketcher::SketchObject", "Sketch003")
sketch4.AttachmentSupport = (doc.getObject("XY_Plane"), [""])
sketch4.MapMode = "FlatFace"
sketch4.AttachmentOffset = App.Placement(Vector(0, 0, 10), App.Rotation())
add_polygon(sketch4, [(3.6, -3.4), (4.7, 1.5), (1.1, 4.8), (-3.6, 3.4), (-4.7, -1.5), (-1.1, -4.8)])  # lines 0-5
sketch4.addConstraint([
    Sketcher.Constraint("Symmetric", 0, 2, 3, 2, -1, 1),
    Sketcher.Constraint("Symmetric", 1, 2, 4, 2, -1, 1),
    Sketcher.Constraint("Symmetric", 2, 2, 5, 2, -1, 1),
    Sketcher.Constraint("Equal", 0, 1),
    Sketcher.Constraint("Equal", 1, 2),
    Sketcher.Constraint("Distance", 0, Q("4.965 mm")),
    Sketcher.Constraint("DistanceX", 2, 2, -1, 1, Q("3.648031 mm")),
    Sketcher.Constraint("DistanceY", -1, 1, 2, 2, Q("3.367951 mm")),
    Sketcher.Constraint("DistanceX", 1, 2, 0, 2, Q("3.648031 mm")),
])
pocket1 = body.newObject("PartDesign::Pocket", "Pocket")
pocket1.Profile = sketch4
pocket1.Length = 5

# Sketch on XY plane
sketch5 = body.newObject("Sketcher::SketchObject", "Sketch004")
sketch5.AttachmentSupport = (doc.getObject("XY_Plane"), [""])
sketch5.MapMode = "FlatFace"
sketch5.AttachmentOffset = App.Placement(Vector(0, 0, -18.55591), App.Rotation())
add_polygon(sketch5, [(3.4, 3.4), (4.7, -1.2), (1.3, -4.7), (-3.4, -3.4), (-4.7, 1.2), (-1.3, 4.7)])  # lines 0-5
sketch5.addConstraint([
    Sketcher.Constraint("Symmetric", 0, 2, 3, 2, -1, 1),
    Sketcher.Constraint("Symmetric", 1, 2, 4, 2, -1, 1),
    Sketcher.Constraint("Symmetric", 2, 2, 5, 2, -1, 1),
    Sketcher.Constraint("Equal", 0, 1),
    Sketcher.Constraint("Equal", 1, 2),
    Sketcher.Constraint("Distance", 0, Q("4.84 mm")),
    Sketcher.Constraint("DistanceX", -1, 1, 0, 2, Q("4.681679 mm")),
    Sketcher.Constraint("DistanceY", 1, 2, -1, 1, Q("4.668351 mm")),
    Sketcher.Constraint("DistanceX", 2, 2, 1, 2, Q("4.681679 mm")),
])
pad3 = body.newObject("PartDesign::Pad", "Pad002")
pad3.Profile = sketch5
pad3.Length = 5
pad3.Reversed = True

doc.recompute()
